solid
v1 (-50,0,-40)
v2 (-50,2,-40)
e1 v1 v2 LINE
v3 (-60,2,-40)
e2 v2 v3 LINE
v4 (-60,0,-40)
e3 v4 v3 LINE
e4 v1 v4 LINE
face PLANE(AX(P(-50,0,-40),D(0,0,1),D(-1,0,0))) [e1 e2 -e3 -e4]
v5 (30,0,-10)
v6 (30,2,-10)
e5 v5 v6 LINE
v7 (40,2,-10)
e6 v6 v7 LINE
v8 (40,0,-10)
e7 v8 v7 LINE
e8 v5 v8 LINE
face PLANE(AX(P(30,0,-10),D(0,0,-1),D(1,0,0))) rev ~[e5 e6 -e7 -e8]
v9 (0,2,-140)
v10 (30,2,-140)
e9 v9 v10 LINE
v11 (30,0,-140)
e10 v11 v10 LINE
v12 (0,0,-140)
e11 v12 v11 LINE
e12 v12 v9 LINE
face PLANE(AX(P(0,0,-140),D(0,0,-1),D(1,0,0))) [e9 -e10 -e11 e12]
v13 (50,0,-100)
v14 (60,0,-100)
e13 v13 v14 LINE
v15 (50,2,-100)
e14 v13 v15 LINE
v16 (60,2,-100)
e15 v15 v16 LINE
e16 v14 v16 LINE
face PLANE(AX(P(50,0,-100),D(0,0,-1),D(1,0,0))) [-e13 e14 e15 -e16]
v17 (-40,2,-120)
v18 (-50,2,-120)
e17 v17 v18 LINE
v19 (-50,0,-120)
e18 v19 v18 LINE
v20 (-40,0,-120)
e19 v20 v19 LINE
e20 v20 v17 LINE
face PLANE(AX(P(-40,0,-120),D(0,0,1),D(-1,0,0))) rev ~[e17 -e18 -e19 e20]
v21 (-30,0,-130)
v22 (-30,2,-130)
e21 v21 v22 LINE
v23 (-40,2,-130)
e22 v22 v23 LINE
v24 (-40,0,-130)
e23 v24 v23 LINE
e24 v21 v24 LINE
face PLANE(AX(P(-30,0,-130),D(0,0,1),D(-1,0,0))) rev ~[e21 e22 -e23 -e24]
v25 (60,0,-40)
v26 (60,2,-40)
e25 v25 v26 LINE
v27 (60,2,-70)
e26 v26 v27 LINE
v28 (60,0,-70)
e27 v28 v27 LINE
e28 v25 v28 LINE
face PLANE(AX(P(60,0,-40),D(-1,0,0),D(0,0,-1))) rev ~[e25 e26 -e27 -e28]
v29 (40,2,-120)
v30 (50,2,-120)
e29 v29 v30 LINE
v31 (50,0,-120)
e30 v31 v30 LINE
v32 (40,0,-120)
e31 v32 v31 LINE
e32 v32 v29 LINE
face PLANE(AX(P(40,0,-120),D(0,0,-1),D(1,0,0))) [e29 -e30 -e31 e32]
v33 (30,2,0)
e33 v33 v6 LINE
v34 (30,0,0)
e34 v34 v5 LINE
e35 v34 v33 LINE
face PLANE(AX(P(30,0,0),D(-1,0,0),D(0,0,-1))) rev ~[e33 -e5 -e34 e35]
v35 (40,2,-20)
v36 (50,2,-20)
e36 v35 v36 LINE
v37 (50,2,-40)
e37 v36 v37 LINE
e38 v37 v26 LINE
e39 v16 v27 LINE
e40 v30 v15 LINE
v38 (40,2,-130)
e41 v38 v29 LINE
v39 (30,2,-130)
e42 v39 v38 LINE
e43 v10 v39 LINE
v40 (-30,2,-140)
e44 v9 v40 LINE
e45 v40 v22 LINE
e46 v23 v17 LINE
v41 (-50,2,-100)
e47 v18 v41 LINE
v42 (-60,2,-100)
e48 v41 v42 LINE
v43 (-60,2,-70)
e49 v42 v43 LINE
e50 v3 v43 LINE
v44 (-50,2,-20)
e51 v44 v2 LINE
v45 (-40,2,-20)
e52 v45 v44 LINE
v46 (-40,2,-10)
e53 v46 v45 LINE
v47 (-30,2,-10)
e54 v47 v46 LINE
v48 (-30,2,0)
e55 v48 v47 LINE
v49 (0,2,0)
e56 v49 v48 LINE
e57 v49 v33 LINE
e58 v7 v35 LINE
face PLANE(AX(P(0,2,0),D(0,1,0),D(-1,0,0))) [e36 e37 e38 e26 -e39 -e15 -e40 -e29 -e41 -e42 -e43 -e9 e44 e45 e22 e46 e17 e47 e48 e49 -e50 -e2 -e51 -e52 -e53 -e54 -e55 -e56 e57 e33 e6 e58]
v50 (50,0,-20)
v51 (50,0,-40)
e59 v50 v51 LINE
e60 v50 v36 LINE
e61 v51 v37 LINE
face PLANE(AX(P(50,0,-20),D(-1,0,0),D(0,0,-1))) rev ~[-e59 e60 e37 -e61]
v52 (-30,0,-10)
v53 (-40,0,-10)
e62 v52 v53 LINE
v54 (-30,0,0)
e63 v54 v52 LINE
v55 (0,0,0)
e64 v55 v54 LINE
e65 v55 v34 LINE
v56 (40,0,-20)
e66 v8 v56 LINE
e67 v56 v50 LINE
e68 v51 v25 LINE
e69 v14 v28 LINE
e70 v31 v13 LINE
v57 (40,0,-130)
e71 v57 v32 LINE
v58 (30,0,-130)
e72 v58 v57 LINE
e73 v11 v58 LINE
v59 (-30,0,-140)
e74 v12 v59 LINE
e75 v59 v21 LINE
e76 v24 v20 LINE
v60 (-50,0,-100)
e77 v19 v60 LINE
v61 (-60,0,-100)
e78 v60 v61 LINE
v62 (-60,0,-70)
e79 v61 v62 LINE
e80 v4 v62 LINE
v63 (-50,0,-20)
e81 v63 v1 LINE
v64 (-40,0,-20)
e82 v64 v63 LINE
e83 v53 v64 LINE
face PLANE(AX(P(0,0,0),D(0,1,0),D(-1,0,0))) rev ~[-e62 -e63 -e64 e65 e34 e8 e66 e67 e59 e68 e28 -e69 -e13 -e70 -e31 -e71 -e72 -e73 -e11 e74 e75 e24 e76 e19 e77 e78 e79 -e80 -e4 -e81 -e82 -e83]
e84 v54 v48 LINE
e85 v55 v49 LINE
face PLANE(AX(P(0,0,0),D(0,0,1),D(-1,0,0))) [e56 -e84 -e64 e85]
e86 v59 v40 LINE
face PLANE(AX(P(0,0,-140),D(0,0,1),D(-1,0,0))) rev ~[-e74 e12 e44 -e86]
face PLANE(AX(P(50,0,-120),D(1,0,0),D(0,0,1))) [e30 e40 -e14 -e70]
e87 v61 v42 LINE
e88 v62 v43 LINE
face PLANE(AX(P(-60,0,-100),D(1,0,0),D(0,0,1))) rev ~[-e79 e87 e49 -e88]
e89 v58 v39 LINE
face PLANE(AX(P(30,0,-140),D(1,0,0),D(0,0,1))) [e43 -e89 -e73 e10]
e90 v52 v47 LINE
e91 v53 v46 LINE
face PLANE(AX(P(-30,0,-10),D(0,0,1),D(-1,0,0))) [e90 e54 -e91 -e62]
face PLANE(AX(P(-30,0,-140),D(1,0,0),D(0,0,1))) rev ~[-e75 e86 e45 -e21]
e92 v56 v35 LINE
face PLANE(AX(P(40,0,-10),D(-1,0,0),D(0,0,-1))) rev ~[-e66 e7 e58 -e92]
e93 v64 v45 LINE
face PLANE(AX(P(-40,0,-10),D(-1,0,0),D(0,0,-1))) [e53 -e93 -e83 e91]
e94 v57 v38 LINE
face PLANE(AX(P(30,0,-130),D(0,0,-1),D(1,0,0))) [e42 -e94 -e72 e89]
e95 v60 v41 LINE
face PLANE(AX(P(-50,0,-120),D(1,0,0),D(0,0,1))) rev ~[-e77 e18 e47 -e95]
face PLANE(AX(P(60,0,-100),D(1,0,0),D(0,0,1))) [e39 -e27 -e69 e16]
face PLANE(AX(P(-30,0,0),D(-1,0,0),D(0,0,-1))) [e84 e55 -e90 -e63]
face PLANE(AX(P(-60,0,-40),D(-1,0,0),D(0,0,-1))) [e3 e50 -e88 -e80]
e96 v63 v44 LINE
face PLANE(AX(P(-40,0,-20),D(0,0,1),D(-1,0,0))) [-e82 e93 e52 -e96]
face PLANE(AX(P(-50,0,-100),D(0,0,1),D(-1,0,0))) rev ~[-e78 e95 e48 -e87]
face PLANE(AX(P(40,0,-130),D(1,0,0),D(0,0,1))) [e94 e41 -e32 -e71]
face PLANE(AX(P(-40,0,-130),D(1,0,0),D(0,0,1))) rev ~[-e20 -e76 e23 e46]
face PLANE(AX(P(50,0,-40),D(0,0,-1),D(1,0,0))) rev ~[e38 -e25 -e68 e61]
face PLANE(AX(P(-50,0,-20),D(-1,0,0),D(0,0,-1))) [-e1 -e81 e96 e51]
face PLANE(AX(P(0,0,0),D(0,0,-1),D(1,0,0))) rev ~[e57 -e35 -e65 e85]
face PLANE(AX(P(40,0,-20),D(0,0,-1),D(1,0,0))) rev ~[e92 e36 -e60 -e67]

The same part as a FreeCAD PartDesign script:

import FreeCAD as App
import Part
import Sketcher
Q = App.Units.Quantity


def add_polygon(sketch, points):
    """Adds a closed chain of lines whose ends are joined by coincident constraints."""
    first, n = sketch.GeometryCount, len(points)
    for a, b in zip(points, points[1:] + points[:1]):
        sketch.addGeometry(Part.LineSegment(App.Vector(*a, 0), App.Vector(*b, 0)), False)
    for i in range(n):
        sketch.addConstraint(Sketcher.Constraint("Coincident", first + i, 2, first + (i + 1) % n, 1))

doc = App.newDocument("Part")
body = doc.addObject("PartDesign::Body", "Body")

# Sketch on XZ plane
sketch1 = doc.addObject("Sketcher::SketchObject", "Sketch")
body.addObject(sketch1)
sketch1.AttachmentSupport = (doc.XZ_Plane, [""])
sketch1.MapMode = "FlatFace"
add_polygon(sketch1, [(-30, 0), (30, 0), (30, -10), (40, -10), (40, -20), (50, -20), (50, -40), (60, -40), (60, -100), (50, -100), (50, -120), (40, -120), (40, -130), (30, -130), (30, -140), (-30, -140), (-30, -130), (-40, -130), (-40, -120), (-50, -120), (-50, -100), (-60, -100), (-60, -40), (-50, -40), (-50, -20), (-40, -20), (-40, -10), (-30, -10)])  # lines 0-27
sketch1.addConstraint(Sketcher.Constraint("Horizontal", 0))
sketch1.addConstraint(Sketcher.Constraint("Vertical", 1))
sketch1.addConstraint(Sketcher.Constraint("Horizontal", 2))
sketch1.addConstraint(Sketcher.Constraint("Vertical", 3))
sketch1.addConstraint(Sketcher.Constraint("Horizontal", 4))
sketch1.addConstraint(Sketcher.Constraint("Vertical", 5))
sketch1.addConstraint(Sketcher.Constraint("Horizontal", 6))
sketch1.addConstraint(Sketcher.Constraint("Vertical", 7))
sketch1.addConstraint(Sketcher.Constraint("Horizontal", 8))
sketch1.addConstraint(Sketcher.Constraint("Vertical", 9))
sketch1.addConstraint(Sketcher.Constraint("Horizontal", 10))
sketch1.addConstraint(Sketcher.Constraint("Vertical", 11))
sketch1.addConstraint(Sketcher.Constraint("Horizontal", 12))
sketch1.addConstraint(Sketcher.Constraint("Vertical", 13))
sketch1.addConstraint(Sketcher.Constraint("Horizontal", 14))
sketch1.addConstraint(Sketcher.Constraint("Vertical", 15))
sketch1.addConstraint(Sketcher.Constraint("Horizontal", 16))
sketch1.addConstraint(Sketcher.Constraint("Vertical", 17))
sketch1.addConstraint(Sketcher.Constraint("Horizontal", 18))
sketch1.addConstraint(Sketcher.Constraint("Vertical", 19))
sketch1.addConstraint(Sketcher.Constraint("Horizontal", 20))
sketch1.addConstraint(Sketcher.Constraint("Vertical", 21))
sketch1.addConstraint(Sketcher.Constraint("Horizontal", 22))
sketch1.addConstraint(Sketcher.Constraint("Vertical", 23))
sketch1.addConstraint(Sketcher.Constraint("Horizontal", 24))
sketch1.addConstraint(Sketcher.Constraint("Vertical", 25))
sketch1.addConstraint(Sketcher.Constraint("Horizontal", 26))
sketch1.addConstraint(Sketcher.Constraint("Vertical", 27))
sketch1.addConstraint(Sketcher.Constraint("Symmetric", 0, 2, 27, 2, -1, 1))
sketch1.addConstraint(Sketcher.Constraint("Symmetric", 12, 2, 15, 2, -2))
sketch1.addConstraint(Sketcher.Constraint("Symmetric", 10, 2, 17, 2, -2))
sketch1.addConstraint(Sketcher.Constraint("Symmetric", 8, 2, 19, 2, -2))
sketch1.addConstraint(Sketcher.Constraint("Symmetric", 6, 2, 21, 2, -2))
sketch1.addConstraint(Sketcher.Constraint("Symmetric", 4, 2, 23, 2, -2))
sketch1.addConstraint(Sketcher.Constraint("Symmetric", 2, 2, 25, 2, -2))
sketch1.addConstraint(Sketcher.Constraint("Vertical", 5, 2, 8, 2))
sketch1.addConstraint(Sketcher.Constraint("Vertical", 3, 2, 10, 2))
sketch1.addConstraint(Sketcher.Constraint("Vertical", 1, 2, 12, 2))
sketch1.addConstraint(Sketcher.Constraint("Equal", 2, 4))
sketch1.addConstraint(Sketcher.Constraint("Equal", 4, 6))
sketch1.addConstraint(Sketcher.Constraint("Equal", 26, 1))
sketch1.addConstraint(Sketcher.Constraint("Equal", 1, 3))
sketch1.addConstraint(Sketcher.Constraint("Equal", 14, 7))
sketch1.addConstraint(Sketcher.Constraint("Equal", 5, 9))
sketch1.addConstraint(Sketcher.Constraint("Equal", 3, 11))
sketch1.addConstraint(Sketcher.Constraint("Equal", 11, 13))
sketch1.addConstraint(Sketcher.Constraint("DistanceX", 2, 1, 2, 2, Q("10 mm")))
sketch1.addConstraint(Sketcher.Constraint("DistanceY", 5, 2, 5, 1, Q("20 mm")))
sketch1.addConstraint(Sketcher.Constraint("DistanceX", -1, 1, 0, 2, Q("30 mm")))
pad1 = doc.addObject("PartDesign::Pad", "Pad")
body.addObject(pad1)
pad1.Profile = sketch1
pad1.Length = 2
pad1.Reversed = True

doc.recompute()
